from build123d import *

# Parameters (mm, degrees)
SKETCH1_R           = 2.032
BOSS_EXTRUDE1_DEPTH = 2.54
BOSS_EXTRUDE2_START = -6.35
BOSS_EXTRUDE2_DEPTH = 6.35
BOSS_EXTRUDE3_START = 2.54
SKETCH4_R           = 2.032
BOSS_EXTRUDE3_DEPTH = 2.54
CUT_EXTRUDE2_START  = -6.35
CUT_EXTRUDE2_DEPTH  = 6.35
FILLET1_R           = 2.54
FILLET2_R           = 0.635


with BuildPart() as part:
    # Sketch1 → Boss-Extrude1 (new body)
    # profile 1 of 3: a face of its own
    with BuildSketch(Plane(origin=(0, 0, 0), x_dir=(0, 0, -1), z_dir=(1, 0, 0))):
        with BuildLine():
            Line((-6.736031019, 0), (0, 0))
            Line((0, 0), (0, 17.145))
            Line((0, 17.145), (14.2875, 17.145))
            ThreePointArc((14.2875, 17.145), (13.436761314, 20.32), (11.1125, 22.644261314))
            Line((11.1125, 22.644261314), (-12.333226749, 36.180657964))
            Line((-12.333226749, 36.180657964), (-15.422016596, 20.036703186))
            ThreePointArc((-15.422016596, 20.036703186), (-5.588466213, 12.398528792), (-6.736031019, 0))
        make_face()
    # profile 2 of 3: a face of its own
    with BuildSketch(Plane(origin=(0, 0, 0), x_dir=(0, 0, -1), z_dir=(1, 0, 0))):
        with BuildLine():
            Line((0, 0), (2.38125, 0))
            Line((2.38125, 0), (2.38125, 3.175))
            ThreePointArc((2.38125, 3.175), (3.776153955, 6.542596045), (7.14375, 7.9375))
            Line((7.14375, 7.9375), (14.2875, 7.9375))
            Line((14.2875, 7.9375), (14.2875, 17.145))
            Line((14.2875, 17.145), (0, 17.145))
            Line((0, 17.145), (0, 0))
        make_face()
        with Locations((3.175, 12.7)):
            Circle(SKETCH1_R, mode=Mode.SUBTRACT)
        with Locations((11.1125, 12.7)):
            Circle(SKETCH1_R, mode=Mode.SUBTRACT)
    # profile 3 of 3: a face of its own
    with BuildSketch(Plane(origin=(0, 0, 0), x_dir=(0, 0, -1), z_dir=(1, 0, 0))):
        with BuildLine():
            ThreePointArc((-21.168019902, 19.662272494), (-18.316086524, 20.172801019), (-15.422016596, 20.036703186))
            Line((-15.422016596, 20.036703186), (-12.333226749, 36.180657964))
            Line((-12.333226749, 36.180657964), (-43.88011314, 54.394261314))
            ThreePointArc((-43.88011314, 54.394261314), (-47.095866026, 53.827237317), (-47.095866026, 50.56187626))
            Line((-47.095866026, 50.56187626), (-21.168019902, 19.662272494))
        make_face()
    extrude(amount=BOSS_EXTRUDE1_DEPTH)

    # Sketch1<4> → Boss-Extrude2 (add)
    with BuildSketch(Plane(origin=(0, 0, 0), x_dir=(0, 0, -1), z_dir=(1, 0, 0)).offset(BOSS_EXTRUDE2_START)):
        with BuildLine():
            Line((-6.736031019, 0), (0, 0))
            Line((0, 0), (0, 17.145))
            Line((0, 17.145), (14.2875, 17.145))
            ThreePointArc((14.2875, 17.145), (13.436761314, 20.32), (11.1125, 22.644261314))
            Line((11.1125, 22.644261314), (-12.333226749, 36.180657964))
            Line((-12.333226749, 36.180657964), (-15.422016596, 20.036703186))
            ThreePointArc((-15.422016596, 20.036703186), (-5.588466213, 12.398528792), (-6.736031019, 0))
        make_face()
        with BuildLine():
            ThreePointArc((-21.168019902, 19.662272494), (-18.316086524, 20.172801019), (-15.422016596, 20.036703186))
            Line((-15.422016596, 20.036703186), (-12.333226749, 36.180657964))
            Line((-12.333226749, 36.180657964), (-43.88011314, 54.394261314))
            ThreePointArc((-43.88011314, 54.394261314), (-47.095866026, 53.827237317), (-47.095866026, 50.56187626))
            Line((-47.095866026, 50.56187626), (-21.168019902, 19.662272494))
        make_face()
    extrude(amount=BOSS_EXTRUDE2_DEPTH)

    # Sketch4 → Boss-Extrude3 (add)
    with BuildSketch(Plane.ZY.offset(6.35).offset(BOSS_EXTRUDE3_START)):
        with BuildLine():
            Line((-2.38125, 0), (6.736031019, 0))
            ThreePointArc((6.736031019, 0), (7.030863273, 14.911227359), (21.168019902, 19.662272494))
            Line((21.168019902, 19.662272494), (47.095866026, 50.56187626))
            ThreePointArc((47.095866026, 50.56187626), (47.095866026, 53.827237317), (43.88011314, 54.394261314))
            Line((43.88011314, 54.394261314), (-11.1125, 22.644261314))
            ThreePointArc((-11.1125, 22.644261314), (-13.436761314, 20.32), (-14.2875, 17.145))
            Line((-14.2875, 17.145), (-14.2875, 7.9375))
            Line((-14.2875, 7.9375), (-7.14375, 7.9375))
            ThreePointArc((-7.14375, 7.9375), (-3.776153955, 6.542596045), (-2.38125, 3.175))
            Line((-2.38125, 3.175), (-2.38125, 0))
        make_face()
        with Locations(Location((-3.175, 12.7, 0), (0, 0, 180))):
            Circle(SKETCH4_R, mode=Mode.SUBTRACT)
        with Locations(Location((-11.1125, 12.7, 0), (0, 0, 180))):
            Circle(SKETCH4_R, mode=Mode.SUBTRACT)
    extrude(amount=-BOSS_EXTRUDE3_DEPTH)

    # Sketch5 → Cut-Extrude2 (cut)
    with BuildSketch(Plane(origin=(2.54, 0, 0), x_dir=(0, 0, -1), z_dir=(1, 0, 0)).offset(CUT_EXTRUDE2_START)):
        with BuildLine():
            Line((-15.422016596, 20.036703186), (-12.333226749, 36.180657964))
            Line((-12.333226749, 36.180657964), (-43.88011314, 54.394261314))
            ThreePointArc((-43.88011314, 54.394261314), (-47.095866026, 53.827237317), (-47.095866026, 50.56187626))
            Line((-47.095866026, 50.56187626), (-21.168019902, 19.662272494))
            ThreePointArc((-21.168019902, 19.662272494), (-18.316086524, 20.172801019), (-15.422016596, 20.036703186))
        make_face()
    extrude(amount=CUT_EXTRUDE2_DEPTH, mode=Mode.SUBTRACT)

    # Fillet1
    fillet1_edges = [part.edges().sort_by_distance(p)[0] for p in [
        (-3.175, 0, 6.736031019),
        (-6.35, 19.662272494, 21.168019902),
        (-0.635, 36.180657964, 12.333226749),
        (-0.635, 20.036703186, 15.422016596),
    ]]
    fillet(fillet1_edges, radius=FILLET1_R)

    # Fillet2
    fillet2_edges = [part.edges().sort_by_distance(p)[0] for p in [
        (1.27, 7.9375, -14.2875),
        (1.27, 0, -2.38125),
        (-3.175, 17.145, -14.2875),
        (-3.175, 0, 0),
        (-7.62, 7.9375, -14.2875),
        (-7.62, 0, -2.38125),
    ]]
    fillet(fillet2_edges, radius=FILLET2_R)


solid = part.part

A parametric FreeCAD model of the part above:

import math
import FreeCAD as App
import Part
import Sketcher
Q = App.Units.Quantity


def edges_at(feature, points):
    """Names of the edges that pass closest to the given points."""
    edges = feature.Shape.Edges
    near = lambda p: min(range(len(edges)), key=lambda i: edges[i].distToShape(Part.Vertex(*p))[0])
    return sorted({f"Edge{near(p) + 1}" for p in points})

doc = App.newDocument("Part")
body = doc.addObject("PartDesign::Body", "Body")

sketch1 = body.newObject("Sketcher::SketchObject", "Sketch")
sketch1.AttachmentSupport = (doc.getObject("YZ_Plane"), [""])
sketch1.MapMode = "FlatFace"
sketch1.addGeometry([
    Part.LineSegment(App.Vector(0, 6.7, 0), App.Vector(0, -2.4, 0)),
    Part.LineSegment(App.Vector(0, -2.4, 0), App.Vector(3.2, -2.4, 0)),
    Part.ArcOfCircle(Part.Circle(App.Vector(3.2, -7.1, 0), App.Vector(0, 0, 1), 4.8), math.radians(0), math.radians(90)),
    Part.LineSegment(App.Vector(7.9, -7.1, 0), App.Vector(7.9, -14.3, 0)),
    Part.LineSegment(App.Vector(7.9, -14.3, 0), App.Vector(17.1, -14.3, 0)),
    Part.ArcOfCircle(Part.Circle(App.Vector(17.1, -7.9, 0), App.Vector(0, 0, 1), 6.3), math.radians(-90), math.radians(-30)),
    Part.LineSegment(App.Vector(22.6, -11.1, 0), App.Vector(36.2, 12.3, 0)),
    Part.LineSegment(App.Vector(36.2, 12.3, 0), App.Vector(54.4, 43.9, 0)),
    Part.ArcOfCircle(Part.Circle(App.Vector(52.2, 45.2, 0), App.Vector(0, 0, 1), 2.5), math.radians(-30), math.radians(130)),
    Part.LineSegment(App.Vector(50.6, 47.1, 0), App.Vector(19.7, 21.2, 0)),
    Part.ArcOfCircle(Part.Circle(App.Vector(7.2, 17.5, 0), App.Vector(0, 0, 1), 13), math.radians(-9), math.radians(17)),
    Part.ArcOfCircle(Part.Circle(App.Vector(7.2, 17.5, 0), App.Vector(0, 0, 1), 13), math.radians(-124), math.radians(-9)),
    Part.Circle(App.Vector(12.7, -11.1, 0), App.Vector(0, 0, 1), 2),
    Part.Circle(App.Vector(12.7, -3.2, 0), App.Vector(0, 0, 1), 2),
], False)
sketch1.addConstraint([
    Sketcher.Constraint("Coincident", 0, 2, 1, 1),
    Sketcher.Constraint("Tangent", 1, 2, 2, 2),
    Sketcher.Constraint("Tangent", 2, 1, 3, 1),
    Sketcher.Constraint("Coincident", 3, 2, 4, 1),
    Sketcher.Constraint("Tangent", 4, 2, 5, 1),
    Sketcher.Constraint("Tangent", 5, 2, 6, 1),
    Sketcher.Constraint("Coincident", 6, 2, 7, 1),
    Sketcher.Constraint("Tangent", 7, 2, 8, 1),
    Sketcher.Constraint("Tangent", 8, 2, 9, 1),
    Sketcher.Constraint("Coincident", 9, 2, 10, 2),
    Sketcher.Constraint("Tangent", 10, 1, 11, 2),
    Sketcher.Constraint("Coincident", 11, 1, 0, 1),
    Sketcher.Constraint("Vertical", 0),
    Sketcher.Constraint("Horizontal", 1),
    Sketcher.Constraint("Vertical", 3),
    Sketcher.Constraint("Horizontal", 4),
    Sketcher.Constraint("Equal", 10, 11),
    Sketcher.Constraint("Equal", 12, 13),
    Sketcher.Constraint("PointOnObject", 0, 2, -2),
    Sketcher.Constraint("Parallel", 6, 7),
    Sketcher.Constraint("Horizontal", 12, 3, 5, 2),
    Sketcher.Constraint("Vertical", 12, 3, 13, 3),
    Sketcher.Constraint("Radius", 8, Q("0.1 in")),
    Sketcher.Constraint("Diameter", 12, Q("0.16 in")),
    Sketcher.Constraint("Radius", 5, Q("0.25 in")),
    Sketcher.Constraint("Radius", 10, Q("0.51 in")),
    Sketcher.Constraint("Angle", 6, Q("60 deg")),
    Sketcher.Constraint("Angle", 9, Q("-140 deg")),
    Sketcher.Constraint("Radius", 2, Q("0.1875 in")),
    Sketcher.Constraint("DistanceX", -1, 1, 12, 3, Q("0.5 in")),
    Sketcher.Constraint("DistanceX", 1, 1, 1, 2, Q("0.125 in")),
    Sketcher.Constraint("DistanceY", 3, 2, 3, 1, Q("0.28125 in")),
    Sketcher.Constraint("DistanceX", 2, 3, 5, 3, Q("0.55 in")),
    Sketcher.Constraint("DistanceY", 2, 3, -1, 1, Q("0.28125 in")),
    Sketcher.Constraint("DistanceY", 13, 3, -1, 1, Q("0.125 in")),
    Sketcher.Constraint("DistanceY", 0, 2, 0, 1, 9.117281),
    Sketcher.Constraint("DistanceX", -1, 1, 7, 2, 54.394261),
    Sketcher.Constraint("DistanceY", -1, 1, 9, 2, 21.16802),
    Sketcher.Constraint("DistanceX", 10, 3, 6, 2, 28.934441),
    Sketcher.Constraint("DistanceX", 9, 2, 10, 1, 0.374431),
])
pad1 = body.newObject("PartDesign::Pad", "Pad")
pad1.Profile = sketch1
pad1.Length = Q("0.1 in")

sketch2 = body.newObject("Sketcher::SketchObject", "Sketch001")
sketch2.AttachmentSupport = (doc.getObject("YZ_Plane"), [""])
sketch2.MapMode = "FlatFace"
sketch2.AttachmentOffset = App.Placement(App.Vector(0, 0, -0.25 * 25.4), App.Rotation())
sketch2.addGeometry([
    Part.LineSegment(App.Vector(0, 6.7, 0), App.Vector(0, 0, 0)),
    Part.LineSegment(App.Vector(0, 0, 0), App.Vector(17.1, 0, 0)),
    Part.LineSegment(App.Vector(17.1, 0, 0), App.Vector(17.1, -14.3, 0)),
    Part.ArcOfCircle(Part.Circle(App.Vector(17.1, -7.9, 0), App.Vector(0, 0, 1), 6.3), math.radians(-90), math.radians(-30)),
    Part.LineSegment(App.Vector(22.6, -11.1, 0), App.Vector(36.2, 12.3, 0)),
    Part.LineSegment(App.Vector(36.2, 12.3, 0), App.Vector(54.4, 43.9, 0)),
    Part.ArcOfCircle(Part.Circle(App.Vector(52.2, 45.2, 0), App.Vector(0, 0, 1), 2.5), math.radians(-30), math.radians(130)),
    Part.LineSegment(App.Vector(50.6, 47.1, 0), App.Vector(19.7, 21.2, 0)),
    Part.ArcOfCircle(Part.Circle(App.Vector(7.2, 17.5, 0), App.Vector(0, 0, 1), 13), math.radians(-9), math.radians(17)),
    Part.ArcOfCircle(Part.Circle(App.Vector(7.2, 17.5, 0), App.Vector(0, 0, 1), 13), math.radians(-124), math.radians(-9)),
], False)
sketch2.addConstraint([
    Sketcher.Constraint("Coincident", 0, 2, 1, 1),
    Sketcher.Constraint("Coincident", 1, 2, 2, 1),
    Sketcher.Constraint("Coincident", 2, 2, 3, 1),
    Sketcher.Constraint("Tangent", 3, 2, 4, 1),
    Sketcher.Constraint("Coincident", 4, 2, 5, 1),
    Sketcher.Constraint("Tangent", 5, 2, 6, 1),
    Sketcher.Constraint("Tangent", 6, 2, 7, 1),
    Sketcher.Constraint("Coincident", 7, 2, 8, 2),
    Sketcher.Constraint("Tangent", 8, 1, 9, 2),
    Sketcher.Constraint("Coincident", 9, 1, 0, 1),
    Sketcher.Constraint("Vertical", 0),
    Sketcher.Constraint("Horizontal", 1),
    Sketcher.Constraint("Vertical", 2),
    Sketcher.Constraint("Coincident", 0, 2, -1, 1),
    Sketcher.Constraint("Equal", 8, 9),
    Sketcher.Constraint("Parallel", 4, 5),
    Sketcher.Constraint("Vertical", 3, 3, 1, 2),
    Sketcher.Constraint("Radius", 6, Q("0.1 in")),
    Sketcher.Constraint("Radius", 3, Q("0.25 in")),
    Sketcher.Constraint("Radius", 8, Q("0.51 in")),
    Sketcher.Constraint("Angle", 4, Q("60 deg")),
    Sketcher.Constraint("Angle", 7, Q("-140 deg")),
    Sketcher.Constraint("DistanceX", 1, 1, 1, 2, Q("0.675 in")),
    Sketcher.Constraint("DistanceY", 2, 2, 2, 1, Q("0.5625 in")),
    Sketcher.Constraint("DistanceY", 0, 2, 0, 1, 6.736031),
    Sketcher.Constraint("DistanceX", -1, 1, 5, 2, 54.394261),
    Sketcher.Constraint("DistanceY", -1, 1, 7, 2, 21.16802),
    Sketcher.Constraint("DistanceX", 8, 3, 4, 2, 28.934441),
    Sketcher.Constraint("DistanceX", 7, 2, 8, 1, 0.374431),
])
pad2 = body.newObject("PartDesign::Pad", "Pad001")
pad2.Profile = sketch2
pad2.Length = Q("0.25 in")

sketch3 = body.newObject("Sketcher::SketchObject", "Sketch002")
sketch3.AttachmentSupport = (doc.getObject("YZ_Plane"), [""])
sketch3.MapMode = "FlatFace"
sketch3.AttachmentOffset = App.Placement(App.Vector(0, 0, -0.35 * 25.4), App.Rotation())
sketch3.addGeometry([
    Part.LineSegment(App.Vector(0, -2.4, 0), App.Vector(0, 6.7, 0)),
    Part.ArcOfCircle(Part.Circle(App.Vector(7.2, 17.5, 0), App.Vector(0, 0, 1), 13), math.radians(-124), math.radians(17)),
    Part.LineSegment(App.Vector(19.7, 21.2, 0), App.Vector(50.6, 47.1, 0)),
    Part.ArcOfCircle(Part.Circle(App.Vector(52.2, 45.2, 0), App.Vector(0, 0, 1), 2.5), math.radians(-30), math.radians(130)),
    Part.LineSegment(App.Vector(54.4, 43.9, 0), App.Vector(22.6, -11.1, 0)),
    Part.ArcOfCircle(Part.Circle(App.Vector(17.1, -7.9, 0), App.Vector(0, 0, 1), 6.3), math.radians(-90), math.radians(-30)),
    Part.LineSegment(App.Vector(17.1, -14.3, 0), App.Vector(7.9, -14.3, 0)),
    Part.LineSegment(App.Vector(7.9, -14.3, 0), App.Vector(7.9, -7.1, 0)),
    Part.ArcOfCircle(Part.Circle(App.Vector(3.2, -7.1, 0), App.Vector(0, 0, 1), 4.8), math.radians(0), math.radians(90)),
    Part.LineSegment(App.Vector(3.2, -2.4, 0), App.Vector(0, -2.4, 0)),
    Part.Circle(App.Vector(12.7, -11.1, 0), App.Vector(0, 0, 1), 2),
    Part.Circle(App.Vector(12.7, -3.2, 0), App.Vector(0, 0, 1), 2),
], False)
sketch3.addConstraint([
    Sketcher.Constraint("Coincident", 0, 2, 1, 1),
    Sketcher.Constraint("Coincident", 1, 2, 2, 1),
    Sketcher.Constraint("Tangent", 2, 2, 3, 2),
    Sketcher.Constraint("Tangent", 3, 1, 4, 1),
    Sketcher.Constraint("Tangent", 4, 2, 5, 2),
    Sketcher.Constraint("Tangent", 5, 1, 6, 1),
    Sketcher.Constraint("Coincident", 6, 2, 7, 1),
    Sketcher.Constraint("Tangent", 7, 2, 8, 1),
    Sketcher.Constraint("Tangent", 8, 2, 9, 1),
    Sketcher.Constraint("Coincident", 9, 2, 0, 1),
    Sketcher.Constraint("Vertical", 0),
    Sketcher.Constraint("Horizontal", 6),
    Sketcher.Constraint("Vertical", 7),
    Sketcher.Constraint("Horizontal", 9),
    Sketcher.Constraint("Equal", 10, 11),
    Sketcher.Constraint("PointOnObject", 0, 2, -2),
    Sketcher.Constraint("Horizontal", 10, 3, 4, 2),
    Sketcher.Constraint("Vertical", 10, 3, 11, 3),
    Sketcher.Constraint("Radius", 3, Q("0.1 in")),
    Sketcher.Constraint("Diameter", 10, Q("0.16 in")),
    Sketcher.Constraint("Radius", 1, Q("0.51 in")),
    Sketcher.Constraint("Radius", 5, Q("0.25 in")),
    Sketcher.Constraint("Angle", 2, Q("40 deg")),
    Sketcher.Constraint("Angle", 4, Q("-120 deg")),
    Sketcher.Constraint("Radius", 8, Q("0.1875 in")),
    Sketcher.Constraint("Distance", 4, Q("2.5 in")),
    Sketcher.Constraint("DistanceX", -1, 1, 10, 3, Q("0.5 in")),
    Sketcher.Constraint("DistanceX", 9, 2, 9, 1, Q("0.125 in")),
    Sketcher.Constraint("DistanceY", 7, 1, 7, 2, Q("0.28125 in")),
    Sketcher.Constraint("DistanceX", 8, 3, 5, 3, Q("0.55 in")),
    Sketcher.Constraint("DistanceY", 5, 3, -1, 1, Q("0.3125 in")),
    Sketcher.Constraint("DistanceY", 11, 3, -1, 1, Q("0.125 in")),
    Sketcher.Constraint("DistanceY", 0, 1, 0, 2, 9.117281),
    Sketcher.Constraint("DistanceY", -1, 1, 1, 2, 21.16802),
])
pad3 = body.newObject("PartDesign::Pad", "Pad002")
pad3.Profile = sketch3
pad3.Length = Q("0.1 in")

sketch4 = body.newObject("Sketcher::SketchObject", "Sketch003")
sketch4.AttachmentSupport = (doc.getObject("YZ_Plane"), [""])
sketch4.MapMode = "FlatFace"
sketch4.AttachmentOffset = App.Placement(App.Vector(0, 0, -0.15 * 25.4), App.Rotation())
sketch4.addGeometry([
    Part.LineSegment(App.Vector(20, 15.4, 0), App.Vector(36.2, 12.3, 0)),
    Part.LineSegment(App.Vector(36.2, 12.3, 0), App.Vector(54.4, 43.9, 0)),
    Part.ArcOfCircle(Part.Circle(App.Vector(52.2, 45.2, 0), App.Vector(0, 0, 1), 2.5), math.radians(-30), math.radians(130)),
    Part.LineSegment(App.Vector(50.6, 47.1, 0), App.Vector(19.7, 21.2, 0)),
    Part.ArcOfCircle(Part.Circle(App.Vector(7.2, 17.5, 0), App.Vector(0, 0, 1), 13), math.radians(-9), math.radians(17)),
], False)
sketch4.addConstraint([
    Sketcher.Constraint("Coincident", 0, 2, 1, 1),
    Sketcher.Constraint("Tangent", 1, 2, 2, 1),
    Sketcher.Constraint("Tangent", 2, 2, 3, 1),
    Sketcher.Constraint("Coincident", 3, 2, 4, 2),
    Sketcher.Constraint("Coincident", 4, 1, 0, 1),
    Sketcher.Constraint("Radius", 2, Q("0.1 in")),
    Sketcher.Constraint("Radius", 4, Q("0.51 in")),
    Sketcher.Constraint("Angle", 1, Q("60 deg")),
    Sketcher.Constraint("Angle", 3, Q("-140 deg")),
    Sketcher.Constraint("DistanceX", 0, 2, 2, 3, 16.013899),
    Sketcher.Constraint("DistanceX", -1, 1, 1, 2, 54.394261),
    Sketcher.Constraint("DistanceY", -1, 1, 3, 2, 21.16802),
    Sketcher.Constraint("DistanceX", 4, 3, 2, 3, 44.94834),
    Sketcher.Constraint("DistanceY", 4, 3, 2, 3, 27.67637),
    Sketcher.Constraint("DistanceX", 3, 2, 4, 1, 0.374431),
])
pocket1 = body.newObject("PartDesign::Pocket", "Pocket")
pocket1.Profile = sketch4
pocket1.Length = Q("0.25 in")
pocket1.Reversed = True
doc.recompute()

fillet = body.newObject("PartDesign::Fillet", "Fillet")
fillet.Base = (pocket1, edges_at(pocket1, [
    (-1.905, 0, 6.736),
    (-5.08, 19.662, 21.168),
    (-0.635, 36.181, 12.333),
    (-0.635, 20.037, 15.422),
]))
fillet.Radius = Q("0.1 in")
doc.recompute()

fillet2 = body.newObject("PartDesign::Fillet", "Fillet001")
fillet2.Base = (fillet, edges_at(fillet, [
    (1.27, 7.938, -14.287),
    (1.27, 0, -2.381),
    (-3.175, 17.145, -14.287),
    (-3.175, 0, 0),
    (-7.62, 7.938, -14.287),
    (-7.62, 0, -2.381),
]))
fillet2.Radius = Q("0.025 in")

doc.recompute()
